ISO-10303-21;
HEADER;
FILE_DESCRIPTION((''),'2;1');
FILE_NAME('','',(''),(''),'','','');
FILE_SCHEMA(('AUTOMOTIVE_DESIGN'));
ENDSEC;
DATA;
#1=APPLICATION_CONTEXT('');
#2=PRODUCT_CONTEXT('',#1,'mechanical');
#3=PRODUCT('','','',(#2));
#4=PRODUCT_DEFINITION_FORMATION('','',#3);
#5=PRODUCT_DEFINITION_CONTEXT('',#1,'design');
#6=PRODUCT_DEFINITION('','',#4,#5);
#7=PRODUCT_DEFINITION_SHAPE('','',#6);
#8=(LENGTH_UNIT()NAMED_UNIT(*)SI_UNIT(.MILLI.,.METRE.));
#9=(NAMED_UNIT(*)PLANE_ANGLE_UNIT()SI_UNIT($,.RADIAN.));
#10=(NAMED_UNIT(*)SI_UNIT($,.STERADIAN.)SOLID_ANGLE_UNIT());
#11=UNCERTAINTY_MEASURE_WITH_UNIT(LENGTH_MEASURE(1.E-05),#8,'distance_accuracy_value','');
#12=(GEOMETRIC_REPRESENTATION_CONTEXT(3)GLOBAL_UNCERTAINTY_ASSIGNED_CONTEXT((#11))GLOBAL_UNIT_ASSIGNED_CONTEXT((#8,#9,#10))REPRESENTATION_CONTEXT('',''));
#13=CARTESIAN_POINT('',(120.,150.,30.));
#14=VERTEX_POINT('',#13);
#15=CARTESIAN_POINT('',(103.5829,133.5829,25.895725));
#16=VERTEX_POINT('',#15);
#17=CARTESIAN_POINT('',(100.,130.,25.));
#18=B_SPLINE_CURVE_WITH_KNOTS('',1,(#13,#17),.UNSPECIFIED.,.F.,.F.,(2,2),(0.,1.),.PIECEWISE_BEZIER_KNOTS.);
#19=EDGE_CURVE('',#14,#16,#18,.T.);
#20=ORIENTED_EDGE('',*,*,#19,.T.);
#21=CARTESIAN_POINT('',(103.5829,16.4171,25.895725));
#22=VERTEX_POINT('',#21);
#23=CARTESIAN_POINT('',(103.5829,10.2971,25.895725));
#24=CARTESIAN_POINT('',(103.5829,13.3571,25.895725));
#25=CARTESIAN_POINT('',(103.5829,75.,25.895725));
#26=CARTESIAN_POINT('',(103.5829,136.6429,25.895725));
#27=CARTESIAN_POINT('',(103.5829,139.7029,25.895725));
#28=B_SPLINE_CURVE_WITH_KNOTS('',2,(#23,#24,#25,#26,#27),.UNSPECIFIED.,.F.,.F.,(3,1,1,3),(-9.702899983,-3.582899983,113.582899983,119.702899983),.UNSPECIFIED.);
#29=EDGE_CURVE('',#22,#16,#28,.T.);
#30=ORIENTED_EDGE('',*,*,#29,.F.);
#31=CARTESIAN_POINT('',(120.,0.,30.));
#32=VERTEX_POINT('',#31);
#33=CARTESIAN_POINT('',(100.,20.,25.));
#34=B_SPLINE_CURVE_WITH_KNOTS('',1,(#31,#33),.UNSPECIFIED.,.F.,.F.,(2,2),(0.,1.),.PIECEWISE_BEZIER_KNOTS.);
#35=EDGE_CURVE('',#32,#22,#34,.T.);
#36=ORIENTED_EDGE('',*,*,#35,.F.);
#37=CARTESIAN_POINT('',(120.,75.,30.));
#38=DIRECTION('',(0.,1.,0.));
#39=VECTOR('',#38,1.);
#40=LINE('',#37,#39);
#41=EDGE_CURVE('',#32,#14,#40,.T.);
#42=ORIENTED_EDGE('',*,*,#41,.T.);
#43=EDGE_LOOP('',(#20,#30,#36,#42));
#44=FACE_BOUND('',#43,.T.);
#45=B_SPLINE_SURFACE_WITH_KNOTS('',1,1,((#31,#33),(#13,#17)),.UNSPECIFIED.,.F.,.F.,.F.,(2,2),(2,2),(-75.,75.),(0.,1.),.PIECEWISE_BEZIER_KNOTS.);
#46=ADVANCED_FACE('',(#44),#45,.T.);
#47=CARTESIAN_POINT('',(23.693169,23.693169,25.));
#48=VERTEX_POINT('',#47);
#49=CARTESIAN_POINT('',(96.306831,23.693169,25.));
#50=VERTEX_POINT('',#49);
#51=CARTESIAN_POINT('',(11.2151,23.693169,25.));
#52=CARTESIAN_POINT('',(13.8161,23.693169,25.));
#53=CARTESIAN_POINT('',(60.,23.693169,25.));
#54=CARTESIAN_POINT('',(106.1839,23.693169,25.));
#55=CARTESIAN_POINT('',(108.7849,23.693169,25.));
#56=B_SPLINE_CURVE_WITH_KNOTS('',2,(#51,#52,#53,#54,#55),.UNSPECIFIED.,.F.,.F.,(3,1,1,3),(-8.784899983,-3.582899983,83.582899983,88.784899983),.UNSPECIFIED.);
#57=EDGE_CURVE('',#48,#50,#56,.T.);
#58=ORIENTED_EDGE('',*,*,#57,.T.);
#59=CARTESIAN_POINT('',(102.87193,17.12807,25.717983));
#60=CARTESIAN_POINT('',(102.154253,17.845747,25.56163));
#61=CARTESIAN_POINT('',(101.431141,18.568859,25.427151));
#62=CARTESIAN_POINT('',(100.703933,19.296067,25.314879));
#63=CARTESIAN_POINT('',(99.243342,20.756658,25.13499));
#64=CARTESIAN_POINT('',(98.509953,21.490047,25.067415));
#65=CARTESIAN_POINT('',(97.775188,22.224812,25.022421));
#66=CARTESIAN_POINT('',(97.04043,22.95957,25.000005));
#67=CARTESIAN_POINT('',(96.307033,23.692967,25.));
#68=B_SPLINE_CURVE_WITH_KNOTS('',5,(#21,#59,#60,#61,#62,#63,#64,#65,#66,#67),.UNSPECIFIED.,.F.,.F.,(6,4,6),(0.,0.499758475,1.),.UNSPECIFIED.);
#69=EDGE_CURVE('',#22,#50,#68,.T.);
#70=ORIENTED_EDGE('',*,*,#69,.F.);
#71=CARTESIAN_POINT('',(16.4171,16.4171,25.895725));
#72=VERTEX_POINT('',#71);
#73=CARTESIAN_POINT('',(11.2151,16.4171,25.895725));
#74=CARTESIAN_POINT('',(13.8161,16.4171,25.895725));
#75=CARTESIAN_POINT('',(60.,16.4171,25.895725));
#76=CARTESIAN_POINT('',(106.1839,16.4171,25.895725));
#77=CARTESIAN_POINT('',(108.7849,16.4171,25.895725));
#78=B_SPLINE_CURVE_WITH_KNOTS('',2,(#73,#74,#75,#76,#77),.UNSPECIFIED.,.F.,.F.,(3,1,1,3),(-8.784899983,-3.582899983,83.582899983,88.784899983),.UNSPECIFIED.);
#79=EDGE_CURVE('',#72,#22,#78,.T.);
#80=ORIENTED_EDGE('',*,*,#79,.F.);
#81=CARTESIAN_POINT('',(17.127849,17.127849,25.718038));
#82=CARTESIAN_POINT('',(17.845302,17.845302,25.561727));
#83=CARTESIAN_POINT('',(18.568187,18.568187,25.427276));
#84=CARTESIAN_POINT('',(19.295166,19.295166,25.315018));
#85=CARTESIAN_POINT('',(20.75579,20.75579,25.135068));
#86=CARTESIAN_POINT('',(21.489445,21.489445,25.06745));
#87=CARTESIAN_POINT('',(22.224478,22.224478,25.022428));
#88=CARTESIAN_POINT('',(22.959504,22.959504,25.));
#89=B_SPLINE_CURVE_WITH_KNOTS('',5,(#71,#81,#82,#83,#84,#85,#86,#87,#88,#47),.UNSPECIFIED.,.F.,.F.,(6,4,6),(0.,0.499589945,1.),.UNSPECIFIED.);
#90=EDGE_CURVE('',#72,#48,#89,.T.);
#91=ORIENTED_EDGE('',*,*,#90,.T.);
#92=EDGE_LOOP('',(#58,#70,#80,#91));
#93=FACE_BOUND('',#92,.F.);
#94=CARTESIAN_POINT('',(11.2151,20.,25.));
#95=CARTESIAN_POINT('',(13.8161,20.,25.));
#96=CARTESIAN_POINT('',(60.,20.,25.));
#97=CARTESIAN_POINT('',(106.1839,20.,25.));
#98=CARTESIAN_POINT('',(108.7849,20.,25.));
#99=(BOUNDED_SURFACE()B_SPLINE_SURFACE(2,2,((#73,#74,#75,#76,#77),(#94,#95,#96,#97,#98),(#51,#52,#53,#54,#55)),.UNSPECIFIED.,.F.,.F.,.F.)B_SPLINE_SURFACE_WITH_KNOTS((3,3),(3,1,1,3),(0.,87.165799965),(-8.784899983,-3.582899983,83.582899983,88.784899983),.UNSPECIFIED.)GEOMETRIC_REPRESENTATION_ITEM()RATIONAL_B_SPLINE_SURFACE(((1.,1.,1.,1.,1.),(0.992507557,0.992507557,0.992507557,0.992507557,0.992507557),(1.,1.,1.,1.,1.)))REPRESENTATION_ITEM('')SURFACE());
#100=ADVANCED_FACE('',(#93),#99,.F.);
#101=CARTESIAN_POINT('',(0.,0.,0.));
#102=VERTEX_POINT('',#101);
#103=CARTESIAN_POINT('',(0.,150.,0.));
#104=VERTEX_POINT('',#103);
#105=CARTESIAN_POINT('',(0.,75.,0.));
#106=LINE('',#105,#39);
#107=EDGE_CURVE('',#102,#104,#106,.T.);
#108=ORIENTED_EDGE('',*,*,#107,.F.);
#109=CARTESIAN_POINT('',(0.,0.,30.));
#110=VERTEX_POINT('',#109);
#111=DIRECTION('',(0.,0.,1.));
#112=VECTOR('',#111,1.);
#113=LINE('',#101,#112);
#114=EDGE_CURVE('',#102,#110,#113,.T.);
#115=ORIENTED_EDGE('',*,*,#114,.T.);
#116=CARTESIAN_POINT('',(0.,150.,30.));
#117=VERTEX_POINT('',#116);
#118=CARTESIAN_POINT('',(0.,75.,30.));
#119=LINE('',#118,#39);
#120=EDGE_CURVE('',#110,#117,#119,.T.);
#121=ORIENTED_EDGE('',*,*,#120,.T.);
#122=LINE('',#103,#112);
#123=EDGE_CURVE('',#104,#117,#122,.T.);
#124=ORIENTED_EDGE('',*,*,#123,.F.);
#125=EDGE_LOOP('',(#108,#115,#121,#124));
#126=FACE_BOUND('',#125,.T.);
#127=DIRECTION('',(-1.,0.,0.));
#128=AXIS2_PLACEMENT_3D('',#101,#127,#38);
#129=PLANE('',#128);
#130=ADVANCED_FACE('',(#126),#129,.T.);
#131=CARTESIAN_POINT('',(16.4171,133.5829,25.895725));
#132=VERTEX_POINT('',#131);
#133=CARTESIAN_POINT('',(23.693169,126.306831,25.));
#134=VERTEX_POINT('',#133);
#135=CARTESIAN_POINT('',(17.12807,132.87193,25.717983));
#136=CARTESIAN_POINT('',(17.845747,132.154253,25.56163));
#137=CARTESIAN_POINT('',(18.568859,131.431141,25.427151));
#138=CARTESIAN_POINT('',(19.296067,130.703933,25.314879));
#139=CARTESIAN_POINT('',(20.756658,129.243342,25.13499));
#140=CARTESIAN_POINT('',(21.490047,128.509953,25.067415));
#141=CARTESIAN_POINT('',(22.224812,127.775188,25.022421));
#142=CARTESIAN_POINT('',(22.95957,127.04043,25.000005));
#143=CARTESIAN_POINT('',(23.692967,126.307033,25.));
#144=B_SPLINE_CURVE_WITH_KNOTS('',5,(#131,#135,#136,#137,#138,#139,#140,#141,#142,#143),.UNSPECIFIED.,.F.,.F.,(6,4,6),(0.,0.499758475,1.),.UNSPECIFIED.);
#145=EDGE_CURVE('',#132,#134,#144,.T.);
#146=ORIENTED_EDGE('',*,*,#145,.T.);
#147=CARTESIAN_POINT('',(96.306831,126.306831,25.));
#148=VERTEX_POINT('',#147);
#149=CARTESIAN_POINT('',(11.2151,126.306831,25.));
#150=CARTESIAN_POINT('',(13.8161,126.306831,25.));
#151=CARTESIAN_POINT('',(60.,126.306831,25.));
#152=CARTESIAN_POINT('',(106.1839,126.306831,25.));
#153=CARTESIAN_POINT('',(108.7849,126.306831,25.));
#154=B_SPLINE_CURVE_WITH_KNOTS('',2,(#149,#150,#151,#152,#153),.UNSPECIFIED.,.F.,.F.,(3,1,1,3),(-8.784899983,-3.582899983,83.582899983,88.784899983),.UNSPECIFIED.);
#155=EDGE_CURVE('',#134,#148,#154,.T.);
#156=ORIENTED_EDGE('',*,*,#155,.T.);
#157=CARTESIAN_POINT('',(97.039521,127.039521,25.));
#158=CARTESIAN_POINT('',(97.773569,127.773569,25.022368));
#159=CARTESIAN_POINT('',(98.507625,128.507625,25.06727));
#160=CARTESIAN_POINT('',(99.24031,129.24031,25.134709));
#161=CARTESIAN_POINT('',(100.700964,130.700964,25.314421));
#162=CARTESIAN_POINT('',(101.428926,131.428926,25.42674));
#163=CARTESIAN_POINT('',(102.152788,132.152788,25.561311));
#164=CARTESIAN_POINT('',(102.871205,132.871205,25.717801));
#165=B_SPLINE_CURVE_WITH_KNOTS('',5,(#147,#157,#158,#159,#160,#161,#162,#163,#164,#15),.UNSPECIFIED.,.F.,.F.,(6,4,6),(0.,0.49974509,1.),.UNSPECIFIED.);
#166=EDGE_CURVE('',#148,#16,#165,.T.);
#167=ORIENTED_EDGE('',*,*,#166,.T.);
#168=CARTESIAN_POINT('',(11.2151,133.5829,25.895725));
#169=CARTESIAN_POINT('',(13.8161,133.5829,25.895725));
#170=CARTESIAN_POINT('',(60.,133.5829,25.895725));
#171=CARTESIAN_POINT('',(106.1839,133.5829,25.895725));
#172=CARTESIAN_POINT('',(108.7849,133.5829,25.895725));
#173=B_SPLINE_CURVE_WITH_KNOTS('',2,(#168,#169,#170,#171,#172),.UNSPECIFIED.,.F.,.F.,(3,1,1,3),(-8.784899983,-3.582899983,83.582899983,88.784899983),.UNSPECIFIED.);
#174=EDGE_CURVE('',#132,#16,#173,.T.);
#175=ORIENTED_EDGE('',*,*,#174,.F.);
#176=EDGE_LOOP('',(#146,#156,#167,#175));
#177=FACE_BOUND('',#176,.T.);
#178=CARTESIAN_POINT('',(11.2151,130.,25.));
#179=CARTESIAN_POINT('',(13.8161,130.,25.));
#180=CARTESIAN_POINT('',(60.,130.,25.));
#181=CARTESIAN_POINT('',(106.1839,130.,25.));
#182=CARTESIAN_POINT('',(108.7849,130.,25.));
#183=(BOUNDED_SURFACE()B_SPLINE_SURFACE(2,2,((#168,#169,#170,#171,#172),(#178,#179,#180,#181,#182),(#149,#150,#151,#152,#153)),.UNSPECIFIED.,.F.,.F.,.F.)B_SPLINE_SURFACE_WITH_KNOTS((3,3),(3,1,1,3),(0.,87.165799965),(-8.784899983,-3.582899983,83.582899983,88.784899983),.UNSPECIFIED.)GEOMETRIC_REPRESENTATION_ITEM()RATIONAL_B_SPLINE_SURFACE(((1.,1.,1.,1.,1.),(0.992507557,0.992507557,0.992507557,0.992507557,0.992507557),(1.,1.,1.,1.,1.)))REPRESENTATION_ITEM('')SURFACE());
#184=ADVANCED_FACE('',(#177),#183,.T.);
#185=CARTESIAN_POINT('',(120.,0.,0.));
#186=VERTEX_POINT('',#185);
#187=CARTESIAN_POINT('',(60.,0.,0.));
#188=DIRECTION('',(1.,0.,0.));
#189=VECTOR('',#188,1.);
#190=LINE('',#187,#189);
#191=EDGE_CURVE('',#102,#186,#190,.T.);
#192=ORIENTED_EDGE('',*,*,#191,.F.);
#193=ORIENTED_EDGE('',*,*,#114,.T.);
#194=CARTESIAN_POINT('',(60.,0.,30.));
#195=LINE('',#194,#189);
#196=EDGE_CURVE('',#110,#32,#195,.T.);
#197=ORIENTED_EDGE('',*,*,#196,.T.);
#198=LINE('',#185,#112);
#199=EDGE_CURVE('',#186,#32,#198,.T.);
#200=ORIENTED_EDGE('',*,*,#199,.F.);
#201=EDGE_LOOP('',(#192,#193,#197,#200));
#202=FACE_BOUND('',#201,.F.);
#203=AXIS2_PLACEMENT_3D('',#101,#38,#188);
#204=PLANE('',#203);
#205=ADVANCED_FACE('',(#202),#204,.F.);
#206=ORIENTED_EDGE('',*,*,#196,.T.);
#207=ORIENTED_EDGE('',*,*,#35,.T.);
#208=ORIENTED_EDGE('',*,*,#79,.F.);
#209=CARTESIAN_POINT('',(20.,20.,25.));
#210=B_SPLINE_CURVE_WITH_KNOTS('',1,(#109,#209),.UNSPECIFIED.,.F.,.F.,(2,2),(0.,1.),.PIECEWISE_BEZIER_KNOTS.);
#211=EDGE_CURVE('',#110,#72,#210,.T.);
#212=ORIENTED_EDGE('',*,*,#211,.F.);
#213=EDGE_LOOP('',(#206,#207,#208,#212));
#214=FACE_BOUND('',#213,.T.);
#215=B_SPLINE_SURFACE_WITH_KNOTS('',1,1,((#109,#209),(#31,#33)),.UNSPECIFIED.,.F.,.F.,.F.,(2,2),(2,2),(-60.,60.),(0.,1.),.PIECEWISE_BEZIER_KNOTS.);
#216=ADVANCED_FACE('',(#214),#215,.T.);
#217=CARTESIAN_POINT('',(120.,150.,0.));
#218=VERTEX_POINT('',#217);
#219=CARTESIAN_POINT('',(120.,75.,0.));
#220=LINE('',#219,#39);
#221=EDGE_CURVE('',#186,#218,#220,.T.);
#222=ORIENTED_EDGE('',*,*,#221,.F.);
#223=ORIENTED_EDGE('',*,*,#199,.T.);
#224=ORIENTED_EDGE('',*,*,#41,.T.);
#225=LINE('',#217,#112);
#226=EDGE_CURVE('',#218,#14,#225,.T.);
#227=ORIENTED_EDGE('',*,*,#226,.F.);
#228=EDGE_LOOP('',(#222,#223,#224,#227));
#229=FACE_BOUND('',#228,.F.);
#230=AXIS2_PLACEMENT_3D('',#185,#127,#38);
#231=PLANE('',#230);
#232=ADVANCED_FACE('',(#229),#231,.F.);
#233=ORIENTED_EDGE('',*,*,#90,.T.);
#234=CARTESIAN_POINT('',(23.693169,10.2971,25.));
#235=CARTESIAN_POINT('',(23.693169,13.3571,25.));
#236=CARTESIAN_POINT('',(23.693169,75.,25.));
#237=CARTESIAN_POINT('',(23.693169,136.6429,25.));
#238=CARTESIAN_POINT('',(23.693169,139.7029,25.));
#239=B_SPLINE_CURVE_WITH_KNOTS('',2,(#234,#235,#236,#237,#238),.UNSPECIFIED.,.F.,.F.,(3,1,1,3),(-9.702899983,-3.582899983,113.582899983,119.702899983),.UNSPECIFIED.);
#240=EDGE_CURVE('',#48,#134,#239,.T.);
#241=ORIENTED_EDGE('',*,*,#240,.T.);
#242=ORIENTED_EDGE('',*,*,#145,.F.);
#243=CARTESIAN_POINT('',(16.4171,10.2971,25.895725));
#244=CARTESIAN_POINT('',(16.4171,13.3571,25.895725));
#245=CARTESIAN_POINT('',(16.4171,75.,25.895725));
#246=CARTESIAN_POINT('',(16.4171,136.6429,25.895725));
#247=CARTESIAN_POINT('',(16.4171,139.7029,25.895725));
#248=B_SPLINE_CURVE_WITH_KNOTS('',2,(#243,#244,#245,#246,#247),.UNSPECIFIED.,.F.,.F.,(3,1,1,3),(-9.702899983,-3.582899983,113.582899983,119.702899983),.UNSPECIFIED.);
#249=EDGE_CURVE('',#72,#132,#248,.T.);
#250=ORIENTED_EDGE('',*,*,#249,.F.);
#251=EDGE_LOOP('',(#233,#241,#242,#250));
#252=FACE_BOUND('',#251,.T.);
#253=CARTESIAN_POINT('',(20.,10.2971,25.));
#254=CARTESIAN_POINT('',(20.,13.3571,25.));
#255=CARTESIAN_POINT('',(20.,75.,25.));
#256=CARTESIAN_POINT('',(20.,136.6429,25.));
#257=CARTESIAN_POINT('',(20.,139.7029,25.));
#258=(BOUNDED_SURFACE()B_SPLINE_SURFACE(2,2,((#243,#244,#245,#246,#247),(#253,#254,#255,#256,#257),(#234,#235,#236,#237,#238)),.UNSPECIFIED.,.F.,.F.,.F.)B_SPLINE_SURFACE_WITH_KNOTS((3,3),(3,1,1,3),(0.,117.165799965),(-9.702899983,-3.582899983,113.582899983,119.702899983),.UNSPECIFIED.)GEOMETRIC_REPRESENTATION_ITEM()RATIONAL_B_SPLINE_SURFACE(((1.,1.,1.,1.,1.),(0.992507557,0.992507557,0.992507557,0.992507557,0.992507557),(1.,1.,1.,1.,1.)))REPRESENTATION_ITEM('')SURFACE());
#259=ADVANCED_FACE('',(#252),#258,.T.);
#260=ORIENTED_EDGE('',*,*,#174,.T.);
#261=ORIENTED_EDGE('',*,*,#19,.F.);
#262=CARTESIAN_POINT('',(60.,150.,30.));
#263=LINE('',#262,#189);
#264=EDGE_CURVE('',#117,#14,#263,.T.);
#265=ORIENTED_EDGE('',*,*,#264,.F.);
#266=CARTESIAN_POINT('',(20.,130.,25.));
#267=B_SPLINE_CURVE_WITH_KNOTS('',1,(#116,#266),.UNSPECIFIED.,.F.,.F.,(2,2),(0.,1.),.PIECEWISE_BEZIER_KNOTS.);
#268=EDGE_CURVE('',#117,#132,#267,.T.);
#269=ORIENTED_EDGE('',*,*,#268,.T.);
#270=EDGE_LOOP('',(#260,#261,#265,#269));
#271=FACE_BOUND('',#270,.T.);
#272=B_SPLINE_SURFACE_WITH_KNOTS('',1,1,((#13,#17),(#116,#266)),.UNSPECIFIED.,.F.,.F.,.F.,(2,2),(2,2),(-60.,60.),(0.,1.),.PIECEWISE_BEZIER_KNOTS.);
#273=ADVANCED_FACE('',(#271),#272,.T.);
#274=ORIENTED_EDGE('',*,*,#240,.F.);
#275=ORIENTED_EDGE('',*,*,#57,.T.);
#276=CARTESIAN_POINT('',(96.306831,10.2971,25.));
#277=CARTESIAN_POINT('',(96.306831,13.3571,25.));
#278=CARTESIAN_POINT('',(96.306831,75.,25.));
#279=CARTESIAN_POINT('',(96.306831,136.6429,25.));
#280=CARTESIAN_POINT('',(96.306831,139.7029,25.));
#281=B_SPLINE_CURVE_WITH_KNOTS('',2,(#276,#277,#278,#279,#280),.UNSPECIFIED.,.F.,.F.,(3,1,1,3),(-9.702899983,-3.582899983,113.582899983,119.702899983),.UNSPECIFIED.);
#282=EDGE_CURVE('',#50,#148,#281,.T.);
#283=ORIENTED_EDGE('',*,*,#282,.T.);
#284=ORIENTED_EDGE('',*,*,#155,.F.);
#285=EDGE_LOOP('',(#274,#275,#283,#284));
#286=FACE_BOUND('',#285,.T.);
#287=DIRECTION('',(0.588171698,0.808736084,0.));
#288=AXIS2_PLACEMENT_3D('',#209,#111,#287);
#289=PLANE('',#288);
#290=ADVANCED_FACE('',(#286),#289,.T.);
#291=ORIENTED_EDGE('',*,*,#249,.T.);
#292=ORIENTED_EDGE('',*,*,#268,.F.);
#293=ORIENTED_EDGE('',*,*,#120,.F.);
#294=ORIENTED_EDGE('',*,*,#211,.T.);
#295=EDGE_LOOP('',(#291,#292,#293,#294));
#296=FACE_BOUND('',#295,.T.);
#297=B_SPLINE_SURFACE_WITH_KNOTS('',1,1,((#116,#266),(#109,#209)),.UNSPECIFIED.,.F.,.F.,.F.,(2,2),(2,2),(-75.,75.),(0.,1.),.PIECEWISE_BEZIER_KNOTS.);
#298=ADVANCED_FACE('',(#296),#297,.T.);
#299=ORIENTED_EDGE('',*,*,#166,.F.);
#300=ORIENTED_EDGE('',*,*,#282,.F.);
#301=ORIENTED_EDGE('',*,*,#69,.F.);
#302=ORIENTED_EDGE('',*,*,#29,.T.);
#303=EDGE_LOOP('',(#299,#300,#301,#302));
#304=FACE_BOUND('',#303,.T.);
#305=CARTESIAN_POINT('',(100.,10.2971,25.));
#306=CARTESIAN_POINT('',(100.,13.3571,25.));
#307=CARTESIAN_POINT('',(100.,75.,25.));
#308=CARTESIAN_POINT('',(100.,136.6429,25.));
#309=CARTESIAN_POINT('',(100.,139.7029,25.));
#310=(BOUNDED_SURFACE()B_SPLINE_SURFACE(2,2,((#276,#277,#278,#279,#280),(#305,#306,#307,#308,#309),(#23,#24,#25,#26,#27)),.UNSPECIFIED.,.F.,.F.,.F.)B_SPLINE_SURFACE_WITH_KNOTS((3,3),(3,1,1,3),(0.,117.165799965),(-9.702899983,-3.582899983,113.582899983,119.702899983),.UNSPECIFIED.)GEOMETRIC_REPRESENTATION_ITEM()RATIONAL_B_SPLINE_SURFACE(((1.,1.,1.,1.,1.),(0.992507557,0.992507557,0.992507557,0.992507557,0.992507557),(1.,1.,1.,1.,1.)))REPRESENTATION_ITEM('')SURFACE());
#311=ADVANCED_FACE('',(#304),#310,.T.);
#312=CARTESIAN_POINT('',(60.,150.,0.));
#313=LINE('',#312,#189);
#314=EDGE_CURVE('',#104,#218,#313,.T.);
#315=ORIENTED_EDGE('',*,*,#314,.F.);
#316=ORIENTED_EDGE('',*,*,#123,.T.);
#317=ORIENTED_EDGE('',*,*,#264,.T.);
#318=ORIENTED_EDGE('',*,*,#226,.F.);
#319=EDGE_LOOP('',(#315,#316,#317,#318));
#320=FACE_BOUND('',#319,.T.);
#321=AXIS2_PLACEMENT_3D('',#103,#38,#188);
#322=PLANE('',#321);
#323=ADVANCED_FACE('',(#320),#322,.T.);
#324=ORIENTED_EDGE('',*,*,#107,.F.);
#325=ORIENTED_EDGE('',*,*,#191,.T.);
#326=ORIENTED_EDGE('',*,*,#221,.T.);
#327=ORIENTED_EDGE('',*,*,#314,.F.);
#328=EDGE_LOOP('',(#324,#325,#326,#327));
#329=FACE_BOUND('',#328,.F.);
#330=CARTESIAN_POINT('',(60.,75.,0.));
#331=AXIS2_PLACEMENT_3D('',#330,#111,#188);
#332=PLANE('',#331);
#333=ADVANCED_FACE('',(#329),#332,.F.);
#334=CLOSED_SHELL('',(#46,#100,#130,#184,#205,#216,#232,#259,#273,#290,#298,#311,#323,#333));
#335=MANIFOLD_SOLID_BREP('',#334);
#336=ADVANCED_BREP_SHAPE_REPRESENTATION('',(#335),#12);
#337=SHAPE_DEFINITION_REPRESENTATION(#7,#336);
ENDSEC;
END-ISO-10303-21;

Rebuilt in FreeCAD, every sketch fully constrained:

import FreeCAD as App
import Part
import Sketcher

V = App.Vector


def edges_at(feature, points):
    """Names of the edges that pass closest to the given points."""
    edges = feature.Shape.Edges
    near = lambda p: min(range(len(edges)), key=lambda i: edges[i].distToShape(Part.Vertex(*p))[0])
    return sorted({f"Edge{near(p) + 1}" for p in points})


def add_polygon(sketch, points):
    """Adds a closed chain of lines whose ends are joined by coincident constraints."""
    first, n = sketch.GeometryCount, len(points)
    for a, b in zip(points, points[1:] + points[:1]):
        sketch.addGeometry(Part.LineSegment(App.Vector(*a, 0), App.Vector(*b, 0)), False)
    for i in range(n):
        sketch.addConstraint(Sketcher.Constraint("Coincident", first + i, 2, first + (i + 1) % n, 1))

doc = App.newDocument("Part")
body = doc.addObject("PartDesign::Body", "Body")

sketch1 = body.newObject("Sketcher::SketchObject", "Sketch")
sketch1.AttachmentSupport = (doc.getObject("XY_Plane"), [""])
sketch1.MapMode = "FlatFace"
add_polygon(sketch1, [(0, 150), (0, 0), (120, 0), (120, 150)])
sketch1.addConstraint(Sketcher.Constraint("Vertical", 0))
sketch1.addConstraint(Sketcher.Constraint("Horizontal", 1))
sketch1.addConstraint(Sketcher.Constraint("Vertical", 2))
sketch1.addConstraint(Sketcher.Constraint("Horizontal", 3))
sketch1.addConstraint(Sketcher.Constraint("Coincident", 0, 2, -1, 1))
sketch1.addConstraint(Sketcher.Constraint("DistanceX", 1, 1, 1, 2, 120.0))
sketch1.addConstraint(Sketcher.Constraint("DistanceY", 0, 2, 0, 1, 150.0))
pad1 = body.newObject("PartDesign::Pad", "Pad")
pad1.Profile = sketch1
pad1.Length = 30

sketch2 = body.newObject("Sketcher::SketchObject", "Sketch001")
sketch2.AttachmentSupport = (doc.getObject("XY_Plane"), [""])
sketch2.MapMode = "FlatFace"
sketch2.AttachmentOffset = App.Placement(V(0, 0, 30), App.Rotation())
add_polygon(sketch2, [(0, 150), (0, 0), (120, 0), (120, 150)])
sketch2.addConstraint(Sketcher.Constraint("Vertical", 0))
sketch2.addConstraint(Sketcher.Constraint("Horizontal", 1))
sketch2.addConstraint(Sketcher.Constraint("Vertical", 2))
sketch2.addConstraint(Sketcher.Constraint("Horizontal", 3))
sketch2.addConstraint(Sketcher.Constraint("Coincident", 0, 2, -1, 1))
sketch2.addConstraint(Sketcher.Constraint("DistanceX", 1, 1, 1, 2, 120.0))
sketch2.addConstraint(Sketcher.Constraint("DistanceY", 0, 2, 0, 1, 150.0))

sketch3 = body.newObject("Sketcher::SketchObject", "Sketch002")
sketch3.AttachmentSupport = (doc.getObject("XY_Plane"), [""])
sketch3.MapMode = "FlatFace"
sketch3.AttachmentOffset = App.Placement(V(0, 0, 25), App.Rotation())
add_polygon(sketch3, [(20, 130), (20, 20), (100, 20), (100, 130)])
sketch3.addConstraint(Sketcher.Constraint("Vertical", 0))
sketch3.addConstraint(Sketcher.Constraint("Horizontal", 1))
sketch3.addConstraint(Sketcher.Constraint("Vertical", 2))
sketch3.addConstraint(Sketcher.Constraint("Horizontal", 3))
sketch3.addConstraint(Sketcher.Constraint("DistanceX", 1, 1, 1, 2, 80.0))
sketch3.addConstraint(Sketcher.Constraint("DistanceY", 0, 2, 0, 1, 110.0))
sketch3.addConstraint(Sketcher.Constraint("DistanceX", -1, 1, 0, 2, 20.0))
sketch3.addConstraint(Sketcher.Constraint("DistanceY", -1, 1, 0, 2, 20.0))

subtractiveloft = body.newObject("PartDesign::SubtractiveLoft", "SubtractiveLoft")
subtractiveloft.Profile = sketch2
subtractiveloft.Sections = [sketch3]
doc.recompute()

fillet = body.newObject("PartDesign::Fillet", "Fillet")
fillet.Base = (subtractiveloft, edges_at(subtractiveloft, [
    (20, 75, 25),
    (60, 20, 25),
    (100, 75, 25),
    (60, 130, 25),
]))
fillet.Radius = 30

doc.recompute()
